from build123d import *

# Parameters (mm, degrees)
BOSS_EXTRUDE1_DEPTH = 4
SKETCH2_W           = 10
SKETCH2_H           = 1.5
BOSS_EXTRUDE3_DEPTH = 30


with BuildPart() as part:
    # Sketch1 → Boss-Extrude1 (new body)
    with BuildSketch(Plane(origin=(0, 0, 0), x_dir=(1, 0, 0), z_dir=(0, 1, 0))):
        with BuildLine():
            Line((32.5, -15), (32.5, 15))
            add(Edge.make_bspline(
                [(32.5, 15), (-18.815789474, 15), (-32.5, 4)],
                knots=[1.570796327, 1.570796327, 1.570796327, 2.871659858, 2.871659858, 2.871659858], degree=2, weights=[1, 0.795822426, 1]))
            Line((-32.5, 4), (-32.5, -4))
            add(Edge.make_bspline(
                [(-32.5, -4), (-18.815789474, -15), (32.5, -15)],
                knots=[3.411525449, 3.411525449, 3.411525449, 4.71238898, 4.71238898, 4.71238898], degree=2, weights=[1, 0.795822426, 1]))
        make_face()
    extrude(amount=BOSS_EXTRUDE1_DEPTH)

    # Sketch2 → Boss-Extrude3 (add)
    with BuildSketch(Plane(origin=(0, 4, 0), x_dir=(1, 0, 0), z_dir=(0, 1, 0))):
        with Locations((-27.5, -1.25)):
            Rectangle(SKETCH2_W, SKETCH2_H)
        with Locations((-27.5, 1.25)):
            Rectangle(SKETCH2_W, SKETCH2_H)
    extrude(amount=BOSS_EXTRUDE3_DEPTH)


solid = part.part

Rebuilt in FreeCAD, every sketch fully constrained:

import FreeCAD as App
import Part
import Sketcher

V = App.Vector

doc = App.newDocument("Part")
body = doc.addObject("PartDesign::Body", "Body")

# Sketch on XZ plane
sketch1 = doc.addObject("Sketcher::SketchObject", "Sketch")
body.addObject(sketch1)
sketch1.AttachmentSupport = (doc.XZ_Plane, [""])
sketch1.MapMode = "FlatFace"
sketch1.addGeometry([
    Part.LineSegment(V(32.5, 15, 0), V(32.5, -15, 0)),
    Part.BSplineCurve([V(32.5, -15, 0), V(-18.815789, -15, 0), V(-32.5, -4, 0)], [3, 3], [1.570796327, 2.871659858], False, 2, [1, 0.795822426, 1], False),
    Part.LineSegment(V(-32.5, -4, 0), V(-32.5, 4, 0)),
    Part.BSplineCurve([V(-32.5, 4, 0), V(-18.815789, 15, 0), V(32.5, 15, 0)], [3, 3], [3.411525449, 4.71238898], False, 2, [1, 0.795822426, 1], False),
], False)
sketch1.addConstraint([
    Sketcher.Constraint("Block", 1),
    Sketcher.Constraint("Block", 3),
    Sketcher.Constraint("Coincident", 0, 2, 1, 1),
    Sketcher.Constraint("Coincident", 1, 2, 2, 1),
    Sketcher.Constraint("Coincident", 2, 2, 3, 1),
    Sketcher.Constraint("Coincident", 3, 2, 0, 1),
])
pad1 = doc.addObject("PartDesign::Pad", "Pad")
body.addObject(pad1)
pad1.Profile = sketch1
pad1.Length = 4
pad1.Reversed = True

# Sketch on XZ plane
sketch2 = doc.addObject("Sketcher::SketchObject", "Sketch001")
body.addObject(sketch2)
sketch2.AttachmentSupport = (doc.XZ_Plane, [""])
sketch2.MapMode = "FlatFace"
sketch2.AttachmentOffset = App.Placement(V(0, 0, -4), App.Rotation())
sketch2.addGeometry([
    Part.LineSegment(V(-32.5, 0.5, 0), V(-32.5, 2, 0)),  # 0
    Part.LineSegment(V(-32.5, 2, 0), V(-22.5, 2, 0)),  # 1
    Part.LineSegment(V(-22.5, 2, 0), V(-22.5, 0.5, 0)),  # 2
    Part.LineSegment(V(-22.5, 0.5, 0), V(-32.5, 0.5, 0)),  # 3
    Part.LineSegment(V(-32.5, -2, 0), V(-32.5, -0.5, 0)),  # 4
    Part.LineSegment(V(-32.5, -0.5, 0), V(-22.5, -0.5, 0)),  # 5
    Part.LineSegment(V(-22.5, -0.5, 0), V(-22.5, -2, 0)),  # 6
    Part.LineSegment(V(-22.5, -2, 0), V(-32.5, -2, 0)),  # 7
], False)
sketch2.addConstraint([
    Sketcher.Constraint("Coincident", 0, 2, 1, 1),
    Sketcher.Constraint("Coincident", 1, 2, 2, 1),
    Sketcher.Constraint("Coincident", 2, 2, 3, 1),
    Sketcher.Constraint("Coincident", 3, 2, 0, 1),
    Sketcher.Constraint("Coincident", 4, 2, 5, 1),
    Sketcher.Constraint("Coincident", 5, 2, 6, 1),
    Sketcher.Constraint("Coincident", 6, 2, 7, 1),
    Sketcher.Constraint("Coincident", 7, 2, 4, 1),
    Sketcher.Constraint("Vertical", 0),
    Sketcher.Constraint("Horizontal", 1),
    Sketcher.Constraint("Vertical", 2),
    Sketcher.Constraint("Horizontal", 3),
    Sketcher.Constraint("Vertical", 4),
    Sketcher.Constraint("Horizontal", 5),
    Sketcher.Constraint("Vertical", 6),
    Sketcher.Constraint("Horizontal", 7),
    Sketcher.Constraint("Symmetric", 3, 2, 4, 2, -1),
    Sketcher.Constraint("Symmetric", 1, 2, 6, 2, -1),
    Sketcher.Constraint("DistanceX", 1, 1, 1, 2, 10.0),
    Sketcher.Constraint("DistanceY", 0, 1, 0, 2, 1.5),
    Sketcher.Constraint("DistanceY", -1, 1, 0, 2, 2.0),
    Sketcher.Constraint("DistanceX", 0, 2, -1, 1, 32.5),
])
pad2 = doc.addObject("PartDesign::Pad", "Pad001")
body.addObject(pad2)
pad2.Profile = sketch2
pad2.Length = 30
pad2.Reversed = True

doc.recompute()
